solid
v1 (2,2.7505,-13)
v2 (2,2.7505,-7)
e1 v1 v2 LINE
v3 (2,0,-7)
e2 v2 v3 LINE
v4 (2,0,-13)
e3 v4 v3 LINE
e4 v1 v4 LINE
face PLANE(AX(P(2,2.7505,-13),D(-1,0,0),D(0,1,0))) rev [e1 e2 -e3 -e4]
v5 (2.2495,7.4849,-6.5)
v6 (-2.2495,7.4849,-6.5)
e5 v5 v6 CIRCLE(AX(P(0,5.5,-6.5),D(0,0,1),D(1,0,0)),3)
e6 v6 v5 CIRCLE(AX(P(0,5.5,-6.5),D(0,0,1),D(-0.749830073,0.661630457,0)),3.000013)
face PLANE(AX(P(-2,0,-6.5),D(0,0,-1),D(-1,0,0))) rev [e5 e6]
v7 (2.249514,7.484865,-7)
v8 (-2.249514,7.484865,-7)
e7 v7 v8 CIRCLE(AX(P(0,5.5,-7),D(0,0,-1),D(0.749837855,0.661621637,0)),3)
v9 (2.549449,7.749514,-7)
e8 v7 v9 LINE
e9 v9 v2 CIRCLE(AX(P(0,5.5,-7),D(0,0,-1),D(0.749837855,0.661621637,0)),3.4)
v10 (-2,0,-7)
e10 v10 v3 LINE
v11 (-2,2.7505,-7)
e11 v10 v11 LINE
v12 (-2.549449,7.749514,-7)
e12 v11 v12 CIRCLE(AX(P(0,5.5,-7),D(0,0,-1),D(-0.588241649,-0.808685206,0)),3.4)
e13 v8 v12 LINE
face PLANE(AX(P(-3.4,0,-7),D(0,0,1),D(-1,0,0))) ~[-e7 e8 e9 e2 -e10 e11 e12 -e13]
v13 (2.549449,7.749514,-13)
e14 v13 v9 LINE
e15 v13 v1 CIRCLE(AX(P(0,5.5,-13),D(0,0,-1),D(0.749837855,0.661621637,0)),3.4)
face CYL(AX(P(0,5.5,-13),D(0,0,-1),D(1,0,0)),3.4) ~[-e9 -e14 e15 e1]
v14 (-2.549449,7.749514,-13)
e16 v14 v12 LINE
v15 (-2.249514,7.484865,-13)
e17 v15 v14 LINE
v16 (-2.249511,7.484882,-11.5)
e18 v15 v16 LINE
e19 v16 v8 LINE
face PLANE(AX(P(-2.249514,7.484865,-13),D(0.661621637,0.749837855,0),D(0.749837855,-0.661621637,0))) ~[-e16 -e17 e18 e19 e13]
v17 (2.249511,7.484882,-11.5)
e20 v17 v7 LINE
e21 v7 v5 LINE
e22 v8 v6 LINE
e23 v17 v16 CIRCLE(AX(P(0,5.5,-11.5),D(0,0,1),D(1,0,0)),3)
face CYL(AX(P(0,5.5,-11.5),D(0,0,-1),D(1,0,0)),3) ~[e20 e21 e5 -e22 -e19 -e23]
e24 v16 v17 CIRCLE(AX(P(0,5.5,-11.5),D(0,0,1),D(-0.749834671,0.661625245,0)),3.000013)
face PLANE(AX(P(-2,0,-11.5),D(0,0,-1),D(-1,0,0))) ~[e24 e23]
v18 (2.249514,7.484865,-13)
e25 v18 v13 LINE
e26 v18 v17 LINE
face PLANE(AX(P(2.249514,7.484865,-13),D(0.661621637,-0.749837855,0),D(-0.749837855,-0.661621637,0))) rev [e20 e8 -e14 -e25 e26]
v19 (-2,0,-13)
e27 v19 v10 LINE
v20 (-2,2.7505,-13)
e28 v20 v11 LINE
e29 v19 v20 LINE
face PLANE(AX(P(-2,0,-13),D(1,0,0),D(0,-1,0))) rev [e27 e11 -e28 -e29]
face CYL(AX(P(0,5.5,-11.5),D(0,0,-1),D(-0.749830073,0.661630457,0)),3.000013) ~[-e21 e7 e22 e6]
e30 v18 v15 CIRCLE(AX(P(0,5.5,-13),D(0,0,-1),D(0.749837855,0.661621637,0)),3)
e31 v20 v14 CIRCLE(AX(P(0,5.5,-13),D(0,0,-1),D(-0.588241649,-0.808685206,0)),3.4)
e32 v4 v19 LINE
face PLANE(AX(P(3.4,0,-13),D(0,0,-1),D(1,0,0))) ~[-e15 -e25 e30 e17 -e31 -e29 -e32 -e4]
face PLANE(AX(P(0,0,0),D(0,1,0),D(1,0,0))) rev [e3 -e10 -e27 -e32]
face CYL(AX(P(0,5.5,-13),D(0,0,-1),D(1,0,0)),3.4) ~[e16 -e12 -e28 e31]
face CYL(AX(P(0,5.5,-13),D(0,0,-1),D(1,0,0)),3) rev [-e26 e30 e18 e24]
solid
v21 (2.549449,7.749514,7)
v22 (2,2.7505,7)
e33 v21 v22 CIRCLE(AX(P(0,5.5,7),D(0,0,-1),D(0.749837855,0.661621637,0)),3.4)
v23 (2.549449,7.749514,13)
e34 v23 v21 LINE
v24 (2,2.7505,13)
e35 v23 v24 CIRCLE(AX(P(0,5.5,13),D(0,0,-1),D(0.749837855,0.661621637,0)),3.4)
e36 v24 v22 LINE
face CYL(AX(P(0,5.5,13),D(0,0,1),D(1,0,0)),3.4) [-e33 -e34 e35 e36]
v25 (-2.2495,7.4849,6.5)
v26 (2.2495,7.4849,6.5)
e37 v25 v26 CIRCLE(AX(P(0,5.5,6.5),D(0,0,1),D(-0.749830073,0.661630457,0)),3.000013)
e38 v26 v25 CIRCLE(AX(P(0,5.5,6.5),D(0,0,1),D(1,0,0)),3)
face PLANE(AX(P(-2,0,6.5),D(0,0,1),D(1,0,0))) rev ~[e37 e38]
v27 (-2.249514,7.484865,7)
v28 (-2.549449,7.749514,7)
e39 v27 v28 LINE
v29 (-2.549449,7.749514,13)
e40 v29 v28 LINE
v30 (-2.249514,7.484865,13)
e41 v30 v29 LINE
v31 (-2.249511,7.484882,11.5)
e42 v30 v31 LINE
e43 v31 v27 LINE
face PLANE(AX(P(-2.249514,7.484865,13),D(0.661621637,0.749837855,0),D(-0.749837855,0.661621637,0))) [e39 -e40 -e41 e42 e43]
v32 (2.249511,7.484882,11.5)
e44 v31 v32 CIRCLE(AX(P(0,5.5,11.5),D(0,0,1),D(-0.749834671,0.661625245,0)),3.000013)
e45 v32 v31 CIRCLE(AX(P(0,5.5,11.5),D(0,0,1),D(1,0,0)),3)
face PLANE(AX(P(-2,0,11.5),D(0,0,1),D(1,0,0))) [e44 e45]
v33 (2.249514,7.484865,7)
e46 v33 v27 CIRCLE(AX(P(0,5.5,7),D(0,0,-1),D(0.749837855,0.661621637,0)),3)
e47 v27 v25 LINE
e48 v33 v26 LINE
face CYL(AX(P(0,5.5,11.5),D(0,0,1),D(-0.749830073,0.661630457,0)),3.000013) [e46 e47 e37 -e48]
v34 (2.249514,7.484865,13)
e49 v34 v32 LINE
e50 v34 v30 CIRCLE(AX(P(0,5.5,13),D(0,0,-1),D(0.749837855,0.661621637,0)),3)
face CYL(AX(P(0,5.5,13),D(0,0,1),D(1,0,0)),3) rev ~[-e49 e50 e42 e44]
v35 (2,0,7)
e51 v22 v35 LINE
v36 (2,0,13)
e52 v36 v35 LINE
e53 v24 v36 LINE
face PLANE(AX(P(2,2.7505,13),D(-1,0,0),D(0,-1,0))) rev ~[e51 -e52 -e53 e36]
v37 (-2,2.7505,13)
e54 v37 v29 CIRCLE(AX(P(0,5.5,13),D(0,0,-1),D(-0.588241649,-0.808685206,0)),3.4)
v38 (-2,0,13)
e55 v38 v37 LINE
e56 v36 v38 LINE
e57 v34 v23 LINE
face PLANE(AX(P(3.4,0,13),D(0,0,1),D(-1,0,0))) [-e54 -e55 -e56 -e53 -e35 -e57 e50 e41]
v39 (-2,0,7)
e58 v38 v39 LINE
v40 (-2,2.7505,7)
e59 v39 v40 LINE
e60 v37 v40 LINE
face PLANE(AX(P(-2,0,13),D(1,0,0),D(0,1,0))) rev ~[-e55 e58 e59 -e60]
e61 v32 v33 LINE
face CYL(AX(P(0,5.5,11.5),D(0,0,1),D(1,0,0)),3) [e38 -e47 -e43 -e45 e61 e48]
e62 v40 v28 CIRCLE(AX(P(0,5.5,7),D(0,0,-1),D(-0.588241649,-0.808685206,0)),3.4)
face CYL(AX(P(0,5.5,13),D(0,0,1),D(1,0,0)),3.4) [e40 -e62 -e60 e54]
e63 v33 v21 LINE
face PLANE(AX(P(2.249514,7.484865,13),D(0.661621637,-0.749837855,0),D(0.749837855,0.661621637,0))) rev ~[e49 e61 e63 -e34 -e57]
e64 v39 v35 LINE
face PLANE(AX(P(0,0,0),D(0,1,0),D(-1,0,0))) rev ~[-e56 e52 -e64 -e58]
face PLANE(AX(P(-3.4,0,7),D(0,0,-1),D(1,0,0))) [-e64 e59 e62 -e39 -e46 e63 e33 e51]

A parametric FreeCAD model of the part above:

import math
import FreeCAD as App
import Part
import Sketcher
from FreeCAD import Vector


def add_polygon(sketch, points):
    """Adds a closed chain of lines whose ends are joined by coincident constraints."""
    first, n = sketch.GeometryCount, len(points)
    for a, b in zip(points, points[1:] + points[:1]):
        sketch.addGeometry(Part.LineSegment(App.Vector(*a, 0), App.Vector(*b, 0)), False)
    for i in range(n):
        sketch.addConstraint(Sketcher.Constraint("Coincident", first + i, 2, first + (i + 1) % n, 1))

doc = App.newDocument("Part")
body = doc.addObject("PartDesign::Body", "Body")
body.AllowCompound = True

# Sketch on XZ plane
sketch1 = doc.addObject("Sketcher::SketchObject", "Sketch")
body.addObject(sketch1)
sketch1.AttachmentSupport = (doc.XZ_Plane, [""])
sketch1.MapMode = "FlatFace"
add_polygon(sketch1, [(3, 7), (-3, 7), (-3, 13), (3, 13)])  # lines 0-3
sketch1.addConstraint([
    Sketcher.Constraint("Horizontal", 0),
    Sketcher.Constraint("Vertical", 1),
    Sketcher.Constraint("Horizontal", 2),
    Sketcher.Constraint("Vertical", 3),
    Sketcher.Constraint("DistanceX", 0, 2, 0, 1, 6.8),
    Sketcher.Constraint("DistanceY", -1, 1, 0, 2, 7.0),
    Sketcher.Constraint("DistanceY", -1, 1, 1, 2, 13.0),
    Sketcher.Constraint("DistanceX", 0, 2, -1, 1, 3.4),
])
pad1 = doc.addObject("PartDesign::Pad", "Pad")
body.addObject(pad1)
pad1.Profile = sketch1
pad1.Length = 8.5
pad1.Reversed = True

# Sketch on XY plane
sketch2 = doc.addObject("Sketcher::SketchObject", "Sketch001")
body.addObject(sketch2)
sketch2.AttachmentSupport = (doc.XY_Plane, [""])
sketch2.MapMode = "FlatFace"
sketch2.AttachmentOffset = App.Placement(Vector(0, 0, 13), App.Rotation())
sketch2.addGeometry([
    Part.LineSegment(Vector(2.25, 7.48, 0), Vector(2.55, 7.75, 0)),  # 0
    Part.ArcOfCircle(Part.Circle(Vector(0, 5.5, 0), Vector(0, 0, 1), 3.4), math.radians(0), math.radians(41)),  # 1
    Part.LineSegment(Vector(3.4, 5.5, 0), Vector(3.4, 8.5, 0)),  # 2
    Part.LineSegment(Vector(3.4, 8.5, 0), Vector(-3.4, 8.5, 0)),  # 3
    Part.LineSegment(Vector(-3.4, 8.5, 0), Vector(-3.4, 5.5, 0)),  # 4
    Part.ArcOfCircle(Part.Circle(Vector(0, 5.5, 0), Vector(0, 0, 1), 3.4), math.radians(139), math.radians(180)),  # 5
    Part.LineSegment(Vector(-2.55, 7.75, 0), Vector(-2.25, 7.48, 0)),  # 6
    Part.ArcOfCircle(Part.Circle(Vector(0, 5.5, 0), Vector(0, 0, 1), 3), math.radians(139), math.radians(401)),  # 7
    Part.ArcOfCircle(Part.Circle(Vector(0, 5.5, 0), Vector(0, 0, 1), 3.4), math.radians(-54), math.radians(0)),  # 8
    Part.LineSegment(Vector(2, 2.75, 0), Vector(2, 0, 0)),  # 9
    Part.LineSegment(Vector(2, 0, 0), Vector(3.4, 0, 0)),  # 10
    Part.LineSegment(Vector(3.4, 0, 0), Vector(3.4, 5.5, 0)),  # 11
    Part.LineSegment(Vector(-2, 0, 0), Vector(-2, 2.75, 0)),  # 12
    Part.ArcOfCircle(Part.Circle(Vector(0, 5.5, 0), Vector(0, 0, 1), 3.4), math.radians(180), math.radians(234)),  # 13
    Part.LineSegment(Vector(-3.4, 5.5, 0), Vector(-3.4, 0, 0)),  # 14
    Part.LineSegment(Vector(-3.4, 0, 0), Vector(-2, 0, 0)),  # 15
], False)
sketch2.addConstraint([
    Sketcher.Constraint("Coincident", 0, 2, 1, 2),
    Sketcher.Constraint("Tangent", 1, 1, 2, 1),
    Sketcher.Constraint("Coincident", 2, 2, 3, 1),
    Sketcher.Constraint("Coincident", 3, 2, 4, 1),
    Sketcher.Constraint("Tangent", 4, 2, 5, 2),
    Sketcher.Constraint("Coincident", 5, 1, 6, 1),
    Sketcher.Constraint("Coincident", 6, 2, 7, 1),
    Sketcher.Constraint("Coincident", 7, 2, 0, 1),
    Sketcher.Constraint("Coincident", 8, 1, 9, 1),
    Sketcher.Constraint("Coincident", 9, 2, 10, 1),
    Sketcher.Constraint("Coincident", 10, 2, 11, 1),
    Sketcher.Constraint("Tangent", 11, 2, 8, 2),
    Sketcher.Constraint("Coincident", 12, 2, 13, 2),
    Sketcher.Constraint("Tangent", 13, 1, 14, 1),
    Sketcher.Constraint("Coincident", 14, 2, 15, 1),
    Sketcher.Constraint("Coincident", 15, 2, 12, 1),
    Sketcher.Constraint("Vertical", 2),
    Sketcher.Constraint("Horizontal", 3),
    Sketcher.Constraint("Vertical", 4),
    Sketcher.Constraint("Vertical", 9),
    Sketcher.Constraint("Horizontal", 10),
    Sketcher.Constraint("Vertical", 11),
    Sketcher.Constraint("Vertical", 12),
    Sketcher.Constraint("Vertical", 14),
    Sketcher.Constraint("Horizontal", 15),
    Sketcher.Constraint("Coincident", 5, 3, 1, 3),
    Sketcher.Constraint("Coincident", 7, 3, 1, 3),
    Sketcher.Constraint("Coincident", 8, 3, 1, 3),
    Sketcher.Constraint("Coincident", 13, 3, 1, 3),
    Sketcher.Constraint("Equal", 1, 5),
    Sketcher.Constraint("Equal", 5, 8),
    Sketcher.Constraint("Equal", 8, 13),
    Sketcher.Constraint("Symmetric", 10, 2, 14, 2, -1, 1),
    Sketcher.Constraint("Symmetric", 9, 2, 15, 2, -2),
    Sketcher.Constraint("Horizontal", 0, 2, 5, 1),
    Sketcher.Constraint("Horizontal", 6, 2, 7, 2),
    Sketcher.Constraint("Radius", 7, 3.0),
    Sketcher.Constraint("DistanceX", 15, 2, 9, 2, 4.0),
    Sketcher.Constraint("Radius", 1, 3.4),
    Sketcher.Constraint("DistanceY", 2, 1, 2, 2, 3.0),
    Sketcher.Constraint("DistanceY", 11, 1, 11, 2, 5.5),
    Sketcher.Constraint("DistanceX", 5, 1, 6, 2, 0.3),
    Sketcher.Constraint("DistanceX", -1, 1, 0, 2, 2.5494),
])
pocket1 = doc.addObject("PartDesign::Pocket", "Pocket")
body.addObject(pocket1)
pocket1.Profile = sketch2
pocket1.Length = 6

# Sketch on XY plane
sketch3 = doc.addObject("Sketcher::SketchObject", "Sketch002")
body.addObject(sketch3)
sketch3.AttachmentSupport = (doc.XY_Plane, [""])
sketch3.MapMode = "FlatFace"
sketch3.AttachmentOffset = App.Placement(Vector(0, 0, 11.5), App.Rotation())
sketch3.addGeometry(Part.Circle(Vector(0, 5.5, 0), Vector(0, 0, 1), 3), False)
sketch3.addConstraint([
    Sketcher.Constraint("PointOnObject", 0, 3, -2),
    Sketcher.Constraint("Diameter", 0, 6.0),
    Sketcher.Constraint("DistanceY", -1, 1, 0, 3, 5.5),
])
pad2 = doc.addObject("PartDesign::Pad", "Pad001")
body.addObject(pad2)
pad2.Profile = sketch3
pad2.Length = 5
pad2.Reversed = True
doc.recompute()

mirrored = doc.addObject("PartDesign::Mirrored", "Mirrored")
body.addObject(mirrored)
mirrored.TransformMode = "Transform body"
mirrored.MirrorPlane = (doc.XY_Plane, [""])
body.Tip = mirrored

doc.recompute()
